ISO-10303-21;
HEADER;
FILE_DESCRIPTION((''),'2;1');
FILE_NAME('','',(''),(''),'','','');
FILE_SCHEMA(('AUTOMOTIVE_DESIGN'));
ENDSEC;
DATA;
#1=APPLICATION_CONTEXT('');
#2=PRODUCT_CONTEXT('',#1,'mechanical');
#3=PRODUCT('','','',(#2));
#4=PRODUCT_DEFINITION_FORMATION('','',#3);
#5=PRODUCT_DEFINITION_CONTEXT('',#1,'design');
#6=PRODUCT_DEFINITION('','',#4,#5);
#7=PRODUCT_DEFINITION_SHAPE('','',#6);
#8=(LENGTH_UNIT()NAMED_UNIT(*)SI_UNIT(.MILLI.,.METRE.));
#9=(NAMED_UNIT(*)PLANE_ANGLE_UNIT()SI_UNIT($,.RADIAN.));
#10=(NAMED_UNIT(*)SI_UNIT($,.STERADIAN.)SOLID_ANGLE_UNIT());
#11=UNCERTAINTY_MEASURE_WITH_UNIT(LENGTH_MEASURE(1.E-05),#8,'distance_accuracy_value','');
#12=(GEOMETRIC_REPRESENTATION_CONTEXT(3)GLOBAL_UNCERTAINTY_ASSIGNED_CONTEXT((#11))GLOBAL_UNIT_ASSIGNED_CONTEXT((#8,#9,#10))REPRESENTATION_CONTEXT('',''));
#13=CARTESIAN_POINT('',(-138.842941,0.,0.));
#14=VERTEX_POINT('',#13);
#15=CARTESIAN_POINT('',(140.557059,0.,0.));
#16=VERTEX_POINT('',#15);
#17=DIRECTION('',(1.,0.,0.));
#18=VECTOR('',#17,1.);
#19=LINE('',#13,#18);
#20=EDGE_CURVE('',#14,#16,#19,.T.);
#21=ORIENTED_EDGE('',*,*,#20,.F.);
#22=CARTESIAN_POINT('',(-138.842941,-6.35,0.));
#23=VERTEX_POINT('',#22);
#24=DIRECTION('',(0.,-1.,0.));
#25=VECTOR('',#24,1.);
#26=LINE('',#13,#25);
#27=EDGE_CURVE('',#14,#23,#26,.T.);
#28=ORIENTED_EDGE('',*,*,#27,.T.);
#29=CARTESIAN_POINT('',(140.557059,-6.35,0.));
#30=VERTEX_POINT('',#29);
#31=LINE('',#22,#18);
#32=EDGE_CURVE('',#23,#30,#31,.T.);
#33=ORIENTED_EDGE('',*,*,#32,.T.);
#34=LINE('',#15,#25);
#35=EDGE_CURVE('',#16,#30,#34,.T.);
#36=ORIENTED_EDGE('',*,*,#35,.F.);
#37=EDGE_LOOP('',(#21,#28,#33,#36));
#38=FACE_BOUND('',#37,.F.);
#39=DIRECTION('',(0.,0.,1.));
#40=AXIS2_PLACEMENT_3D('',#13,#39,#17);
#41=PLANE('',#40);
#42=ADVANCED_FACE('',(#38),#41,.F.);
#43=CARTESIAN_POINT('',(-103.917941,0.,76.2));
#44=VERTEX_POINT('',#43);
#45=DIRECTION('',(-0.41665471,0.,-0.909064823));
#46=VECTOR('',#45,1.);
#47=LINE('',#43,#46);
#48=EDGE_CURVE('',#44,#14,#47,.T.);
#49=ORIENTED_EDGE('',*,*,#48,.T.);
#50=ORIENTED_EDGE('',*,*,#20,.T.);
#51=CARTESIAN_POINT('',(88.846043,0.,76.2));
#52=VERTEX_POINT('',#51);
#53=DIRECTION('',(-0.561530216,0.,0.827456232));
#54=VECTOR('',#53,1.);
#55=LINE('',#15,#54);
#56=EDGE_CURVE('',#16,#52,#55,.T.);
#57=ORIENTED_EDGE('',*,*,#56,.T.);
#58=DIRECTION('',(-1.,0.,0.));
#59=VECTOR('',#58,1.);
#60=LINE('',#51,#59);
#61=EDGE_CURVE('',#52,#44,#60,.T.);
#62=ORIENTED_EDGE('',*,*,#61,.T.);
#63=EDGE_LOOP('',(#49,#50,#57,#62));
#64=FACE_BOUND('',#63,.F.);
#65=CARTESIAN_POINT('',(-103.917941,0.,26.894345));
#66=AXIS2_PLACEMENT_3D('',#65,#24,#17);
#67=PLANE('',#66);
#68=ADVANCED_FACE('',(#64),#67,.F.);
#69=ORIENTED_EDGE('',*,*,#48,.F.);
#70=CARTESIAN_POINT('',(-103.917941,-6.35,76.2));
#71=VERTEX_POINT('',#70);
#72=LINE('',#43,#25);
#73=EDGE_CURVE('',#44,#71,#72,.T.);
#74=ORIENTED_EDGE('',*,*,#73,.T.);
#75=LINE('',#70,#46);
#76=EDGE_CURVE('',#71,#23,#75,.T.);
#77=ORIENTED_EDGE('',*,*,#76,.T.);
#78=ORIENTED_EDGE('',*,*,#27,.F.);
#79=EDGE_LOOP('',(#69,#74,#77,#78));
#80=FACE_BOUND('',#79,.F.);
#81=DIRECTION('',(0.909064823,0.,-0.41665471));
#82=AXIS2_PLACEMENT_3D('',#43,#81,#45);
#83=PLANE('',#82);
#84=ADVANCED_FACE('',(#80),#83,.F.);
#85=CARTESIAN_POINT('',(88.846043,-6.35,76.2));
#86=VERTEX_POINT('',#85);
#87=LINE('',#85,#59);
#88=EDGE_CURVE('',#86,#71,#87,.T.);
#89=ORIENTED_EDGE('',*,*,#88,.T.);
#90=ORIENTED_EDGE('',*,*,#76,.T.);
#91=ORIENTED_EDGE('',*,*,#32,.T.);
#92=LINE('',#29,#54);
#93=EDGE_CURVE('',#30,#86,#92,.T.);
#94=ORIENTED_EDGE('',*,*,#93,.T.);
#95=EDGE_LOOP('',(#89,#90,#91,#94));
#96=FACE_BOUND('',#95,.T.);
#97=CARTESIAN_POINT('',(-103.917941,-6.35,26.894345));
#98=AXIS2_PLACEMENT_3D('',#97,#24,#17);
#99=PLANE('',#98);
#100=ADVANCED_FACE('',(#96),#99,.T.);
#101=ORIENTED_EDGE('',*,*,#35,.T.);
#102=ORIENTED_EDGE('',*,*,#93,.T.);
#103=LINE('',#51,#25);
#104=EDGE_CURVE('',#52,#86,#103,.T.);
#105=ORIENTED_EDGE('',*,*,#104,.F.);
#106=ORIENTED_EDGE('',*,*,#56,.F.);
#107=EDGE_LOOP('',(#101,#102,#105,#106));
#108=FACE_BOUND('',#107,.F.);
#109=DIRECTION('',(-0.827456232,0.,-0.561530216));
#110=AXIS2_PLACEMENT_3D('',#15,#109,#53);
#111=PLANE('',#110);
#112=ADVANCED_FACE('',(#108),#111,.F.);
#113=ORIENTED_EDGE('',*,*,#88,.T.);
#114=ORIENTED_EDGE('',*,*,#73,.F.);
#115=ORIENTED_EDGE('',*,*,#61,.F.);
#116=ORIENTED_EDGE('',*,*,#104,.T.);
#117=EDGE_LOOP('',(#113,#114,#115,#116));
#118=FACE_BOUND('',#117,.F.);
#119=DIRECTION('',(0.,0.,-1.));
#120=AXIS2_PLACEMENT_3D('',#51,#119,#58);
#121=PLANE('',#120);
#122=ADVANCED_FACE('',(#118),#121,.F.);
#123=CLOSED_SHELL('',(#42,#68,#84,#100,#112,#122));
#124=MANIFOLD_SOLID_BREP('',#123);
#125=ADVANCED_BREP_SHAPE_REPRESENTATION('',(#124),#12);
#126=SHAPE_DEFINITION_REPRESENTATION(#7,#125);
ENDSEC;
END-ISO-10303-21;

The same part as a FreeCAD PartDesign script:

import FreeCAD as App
import Part
import Sketcher
Q = App.Units.Quantity

doc = App.newDocument("Part")
params = doc.addObject("Spreadsheet::Sheet", "Params")
for row, (alias, value) in enumerate([
    ("sketch1_width", "11 in"),
    ("pad1_length", "0.25 in"),
], start=1):
    params.set(f"A{row}", alias)
    params.set(f"B{row}", "=" + value)
    params.setAlias(f"B{row}", alias)

body = doc.addObject("PartDesign::Body", "Body")

sketch1 = doc.addObject("Sketcher::SketchObject", "Sketch")
body.addObject(sketch1)
sketch1.AttachmentSupport = (doc.XZ_Plane, [""])
sketch1.MapMode = "FlatFace"
sketch1.addGeometry([
    Part.LineSegment(App.Vector(-104, 76, 0), App.Vector(-139, 0, 0)),
    Part.LineSegment(App.Vector(-139, 0, 0), App.Vector(141, 0, 0)),
    Part.LineSegment(App.Vector(141, 0, 0), App.Vector(89, 76, 0)),
    Part.LineSegment(App.Vector(89, 76, 0), App.Vector(-104, 76, 0)),
], False)
sketch1.addConstraint([
    Sketcher.Constraint("Coincident", 0, 2, 1, 1),
    Sketcher.Constraint("Coincident", 1, 2, 2, 1),
    Sketcher.Constraint("Coincident", 2, 2, 3, 1),
    Sketcher.Constraint("Coincident", 3, 2, 0, 1),
    Sketcher.Constraint("Horizontal", 1),
    Sketcher.Constraint("Horizontal", 3),
    Sketcher.Constraint("PointOnObject", 0, 2, -1),
    Sketcher.Constraint("DistanceX", 1, 1, 1, 2, Q("11 in")),
    Sketcher.Constraint("DistanceY", -1, 1, 2, 2, Q("3 in")),
    Sketcher.Constraint("DistanceX", 0, 2, 3, 2, Q("1.375 in")),
    Sketcher.Constraint("DistanceX", 3, 2, 3, 1, 192.763984),
    Sketcher.Constraint("DistanceX", 0, 2, -1, 1, 138.842941),
])
sketch1.setExpression("Constraints[7]", "Params.sketch1_width")
pad1 = doc.addObject("PartDesign::Pad", "Pad")
body.addObject(pad1)
pad1.Profile = sketch1
pad1.setExpression("Length", "Params.pad1_length")

doc.recompute()
